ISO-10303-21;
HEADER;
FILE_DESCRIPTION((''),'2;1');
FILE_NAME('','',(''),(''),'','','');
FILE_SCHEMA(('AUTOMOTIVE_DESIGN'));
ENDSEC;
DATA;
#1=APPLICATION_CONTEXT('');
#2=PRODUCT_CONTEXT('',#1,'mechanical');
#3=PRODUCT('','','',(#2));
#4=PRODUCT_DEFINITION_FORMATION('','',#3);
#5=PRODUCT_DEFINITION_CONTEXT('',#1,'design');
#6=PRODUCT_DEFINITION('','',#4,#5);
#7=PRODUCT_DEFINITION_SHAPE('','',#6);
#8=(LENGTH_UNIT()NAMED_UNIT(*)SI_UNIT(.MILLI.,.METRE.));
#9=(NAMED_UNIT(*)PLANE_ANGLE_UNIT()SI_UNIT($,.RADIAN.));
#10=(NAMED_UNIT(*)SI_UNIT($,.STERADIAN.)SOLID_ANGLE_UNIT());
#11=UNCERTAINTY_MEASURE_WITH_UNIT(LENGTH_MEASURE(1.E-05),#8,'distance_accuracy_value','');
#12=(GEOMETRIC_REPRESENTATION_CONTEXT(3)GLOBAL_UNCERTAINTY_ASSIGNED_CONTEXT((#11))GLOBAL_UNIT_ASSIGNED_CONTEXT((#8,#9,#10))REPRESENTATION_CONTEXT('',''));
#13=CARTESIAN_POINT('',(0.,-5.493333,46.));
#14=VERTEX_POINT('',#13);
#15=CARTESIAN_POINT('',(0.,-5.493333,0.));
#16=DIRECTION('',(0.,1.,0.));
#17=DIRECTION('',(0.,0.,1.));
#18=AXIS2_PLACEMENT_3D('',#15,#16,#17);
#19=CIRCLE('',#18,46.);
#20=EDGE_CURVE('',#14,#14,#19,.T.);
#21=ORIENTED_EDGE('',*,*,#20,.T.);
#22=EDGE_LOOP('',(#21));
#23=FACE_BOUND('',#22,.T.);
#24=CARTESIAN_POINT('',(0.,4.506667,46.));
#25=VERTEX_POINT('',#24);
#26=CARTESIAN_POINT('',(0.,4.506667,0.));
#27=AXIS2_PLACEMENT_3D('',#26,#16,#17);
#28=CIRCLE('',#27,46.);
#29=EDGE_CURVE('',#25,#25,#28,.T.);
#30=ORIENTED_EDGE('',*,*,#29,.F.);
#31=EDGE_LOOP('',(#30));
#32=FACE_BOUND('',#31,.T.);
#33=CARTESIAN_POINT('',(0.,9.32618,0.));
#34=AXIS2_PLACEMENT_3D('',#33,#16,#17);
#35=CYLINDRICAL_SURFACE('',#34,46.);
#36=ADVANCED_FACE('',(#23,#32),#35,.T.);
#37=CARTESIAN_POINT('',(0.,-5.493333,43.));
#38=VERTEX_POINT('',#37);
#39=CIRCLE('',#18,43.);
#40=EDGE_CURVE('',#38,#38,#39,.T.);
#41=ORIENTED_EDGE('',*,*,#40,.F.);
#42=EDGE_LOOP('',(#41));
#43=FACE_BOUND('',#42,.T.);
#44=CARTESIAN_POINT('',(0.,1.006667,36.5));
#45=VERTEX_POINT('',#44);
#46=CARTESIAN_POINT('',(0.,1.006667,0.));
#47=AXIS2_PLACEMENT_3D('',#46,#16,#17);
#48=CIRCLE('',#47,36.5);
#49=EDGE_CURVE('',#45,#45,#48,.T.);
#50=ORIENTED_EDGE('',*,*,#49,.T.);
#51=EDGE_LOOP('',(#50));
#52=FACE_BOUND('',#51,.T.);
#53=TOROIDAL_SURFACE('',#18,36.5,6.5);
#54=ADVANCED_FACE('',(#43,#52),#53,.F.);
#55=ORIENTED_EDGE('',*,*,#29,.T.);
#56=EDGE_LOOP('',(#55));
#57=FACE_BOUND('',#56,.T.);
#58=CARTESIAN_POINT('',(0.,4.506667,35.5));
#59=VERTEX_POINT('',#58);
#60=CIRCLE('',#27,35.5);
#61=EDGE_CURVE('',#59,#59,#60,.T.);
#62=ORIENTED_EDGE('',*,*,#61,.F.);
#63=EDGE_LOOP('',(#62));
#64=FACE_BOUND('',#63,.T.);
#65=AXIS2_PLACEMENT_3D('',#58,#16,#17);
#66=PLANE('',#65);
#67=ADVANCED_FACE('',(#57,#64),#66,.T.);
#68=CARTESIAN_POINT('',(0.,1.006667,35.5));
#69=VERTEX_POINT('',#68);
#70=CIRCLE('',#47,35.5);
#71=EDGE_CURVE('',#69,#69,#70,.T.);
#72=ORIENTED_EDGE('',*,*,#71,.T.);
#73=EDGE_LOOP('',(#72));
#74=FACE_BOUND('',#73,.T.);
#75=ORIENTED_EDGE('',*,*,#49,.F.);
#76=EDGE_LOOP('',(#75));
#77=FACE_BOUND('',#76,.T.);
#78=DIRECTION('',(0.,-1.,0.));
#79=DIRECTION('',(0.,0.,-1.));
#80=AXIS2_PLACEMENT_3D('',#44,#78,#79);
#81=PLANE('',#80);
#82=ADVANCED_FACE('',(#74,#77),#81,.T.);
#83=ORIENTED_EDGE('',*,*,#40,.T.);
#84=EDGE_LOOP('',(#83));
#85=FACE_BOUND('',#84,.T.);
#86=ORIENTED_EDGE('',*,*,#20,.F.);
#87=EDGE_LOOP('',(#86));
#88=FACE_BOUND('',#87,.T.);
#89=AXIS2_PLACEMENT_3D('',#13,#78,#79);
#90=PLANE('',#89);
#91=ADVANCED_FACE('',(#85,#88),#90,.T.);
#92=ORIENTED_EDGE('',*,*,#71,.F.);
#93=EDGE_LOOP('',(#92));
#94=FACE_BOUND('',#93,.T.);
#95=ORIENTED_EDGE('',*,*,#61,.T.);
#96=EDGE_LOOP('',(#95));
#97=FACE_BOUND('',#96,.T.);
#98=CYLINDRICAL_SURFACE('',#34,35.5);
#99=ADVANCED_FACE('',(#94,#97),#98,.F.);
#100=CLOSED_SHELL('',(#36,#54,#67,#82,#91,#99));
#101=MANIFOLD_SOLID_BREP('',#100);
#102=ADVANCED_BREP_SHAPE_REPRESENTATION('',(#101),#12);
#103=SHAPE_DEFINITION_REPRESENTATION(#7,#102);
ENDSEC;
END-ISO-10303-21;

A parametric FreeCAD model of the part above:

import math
import FreeCAD as App
import Part
import Sketcher
Q = App.Units.Quantity

doc = App.newDocument("Part")
body = doc.addObject("PartDesign::Body", "Body")

sketch1 = doc.addObject("Sketcher::SketchObject", "Sketch")
body.addObject(sketch1)
sketch1.AttachmentSupport = (doc.YZ_Plane, [""])
sketch1.MapMode = "FlatFace"
sketch1.addGeometry(Part.LineSegment(App.Vector(4.506667, 35.5, 0), App.Vector(4.506667, 46, 0)), False)
sketch1.addGeometry(Part.LineSegment(App.Vector(4.506667, 46, 0), App.Vector(-5.493333, 46, 0)), False)
sketch1.addGeometry(Part.LineSegment(App.Vector(-5.493333, 46, 0), App.Vector(-5.493333, 43, 0)), False)
sketch1.addGeometry(Part.ArcOfCircle(Part.Circle(App.Vector(-5.493333, 36.5, 0), App.Vector(0, 0, 1), 6.5), math.radians(0), math.radians(90)), False)
sketch1.addGeometry(Part.LineSegment(App.Vector(1.006667, 36.5, 0), App.Vector(1.006667, 35.5, 0)), False)
sketch1.addGeometry(Part.LineSegment(App.Vector(1.006667, 35.5, 0), App.Vector(4.506667, 35.5, 0)), False)
sketch1.addConstraint(Sketcher.Constraint("Coincident", 0, 2, 1, 1))
sketch1.addConstraint(Sketcher.Constraint("Coincident", 1, 2, 2, 1))
sketch1.addConstraint(Sketcher.Constraint("Coincident", 2, 2, 3, 2))
sketch1.addConstraint(Sketcher.Constraint("Tangent", 3, 1, 4, 1))
sketch1.addConstraint(Sketcher.Constraint("Coincident", 4, 2, 5, 1))
sketch1.addConstraint(Sketcher.Constraint("Coincident", 5, 2, 0, 1))
sketch1.addConstraint(Sketcher.Constraint("Vertical", 0))
sketch1.addConstraint(Sketcher.Constraint("Horizontal", 1))
sketch1.addConstraint(Sketcher.Constraint("Vertical", 2))
sketch1.addConstraint(Sketcher.Constraint("Vertical", 4))
sketch1.addConstraint(Sketcher.Constraint("Horizontal", 5))
sketch1.addConstraint(Sketcher.Constraint("Vertical", 3, 3, 1, 2))
sketch1.addConstraint(Sketcher.Constraint("Radius", 3, Q("6.5 mm")))
sketch1.addConstraint(Sketcher.Constraint("DistanceX", 1, 2, 1, 1, Q("10 mm")))
sketch1.addConstraint(Sketcher.Constraint("DistanceY", 2, 2, 2, 1, Q("3 mm")))
sketch1.addConstraint(Sketcher.Constraint("DistanceY", 4, 2, 4, 1, Q("1 mm")))
sketch1.addConstraint(Sketcher.Constraint("DistanceY", -1, 1, 0, 2, Q("46 mm")))
sketch1.addConstraint(Sketcher.Constraint("DistanceX", 3, 3, -1, 1, Q("5.493333 mm")))
revolution = doc.addObject("PartDesign::Revolution", "Revolution")
body.addObject(revolution)
revolution.Profile = sketch1
revolution.ReferenceAxis = (sketch1, ["H_Axis"])
revolution.Angle = 360

doc.recompute()
